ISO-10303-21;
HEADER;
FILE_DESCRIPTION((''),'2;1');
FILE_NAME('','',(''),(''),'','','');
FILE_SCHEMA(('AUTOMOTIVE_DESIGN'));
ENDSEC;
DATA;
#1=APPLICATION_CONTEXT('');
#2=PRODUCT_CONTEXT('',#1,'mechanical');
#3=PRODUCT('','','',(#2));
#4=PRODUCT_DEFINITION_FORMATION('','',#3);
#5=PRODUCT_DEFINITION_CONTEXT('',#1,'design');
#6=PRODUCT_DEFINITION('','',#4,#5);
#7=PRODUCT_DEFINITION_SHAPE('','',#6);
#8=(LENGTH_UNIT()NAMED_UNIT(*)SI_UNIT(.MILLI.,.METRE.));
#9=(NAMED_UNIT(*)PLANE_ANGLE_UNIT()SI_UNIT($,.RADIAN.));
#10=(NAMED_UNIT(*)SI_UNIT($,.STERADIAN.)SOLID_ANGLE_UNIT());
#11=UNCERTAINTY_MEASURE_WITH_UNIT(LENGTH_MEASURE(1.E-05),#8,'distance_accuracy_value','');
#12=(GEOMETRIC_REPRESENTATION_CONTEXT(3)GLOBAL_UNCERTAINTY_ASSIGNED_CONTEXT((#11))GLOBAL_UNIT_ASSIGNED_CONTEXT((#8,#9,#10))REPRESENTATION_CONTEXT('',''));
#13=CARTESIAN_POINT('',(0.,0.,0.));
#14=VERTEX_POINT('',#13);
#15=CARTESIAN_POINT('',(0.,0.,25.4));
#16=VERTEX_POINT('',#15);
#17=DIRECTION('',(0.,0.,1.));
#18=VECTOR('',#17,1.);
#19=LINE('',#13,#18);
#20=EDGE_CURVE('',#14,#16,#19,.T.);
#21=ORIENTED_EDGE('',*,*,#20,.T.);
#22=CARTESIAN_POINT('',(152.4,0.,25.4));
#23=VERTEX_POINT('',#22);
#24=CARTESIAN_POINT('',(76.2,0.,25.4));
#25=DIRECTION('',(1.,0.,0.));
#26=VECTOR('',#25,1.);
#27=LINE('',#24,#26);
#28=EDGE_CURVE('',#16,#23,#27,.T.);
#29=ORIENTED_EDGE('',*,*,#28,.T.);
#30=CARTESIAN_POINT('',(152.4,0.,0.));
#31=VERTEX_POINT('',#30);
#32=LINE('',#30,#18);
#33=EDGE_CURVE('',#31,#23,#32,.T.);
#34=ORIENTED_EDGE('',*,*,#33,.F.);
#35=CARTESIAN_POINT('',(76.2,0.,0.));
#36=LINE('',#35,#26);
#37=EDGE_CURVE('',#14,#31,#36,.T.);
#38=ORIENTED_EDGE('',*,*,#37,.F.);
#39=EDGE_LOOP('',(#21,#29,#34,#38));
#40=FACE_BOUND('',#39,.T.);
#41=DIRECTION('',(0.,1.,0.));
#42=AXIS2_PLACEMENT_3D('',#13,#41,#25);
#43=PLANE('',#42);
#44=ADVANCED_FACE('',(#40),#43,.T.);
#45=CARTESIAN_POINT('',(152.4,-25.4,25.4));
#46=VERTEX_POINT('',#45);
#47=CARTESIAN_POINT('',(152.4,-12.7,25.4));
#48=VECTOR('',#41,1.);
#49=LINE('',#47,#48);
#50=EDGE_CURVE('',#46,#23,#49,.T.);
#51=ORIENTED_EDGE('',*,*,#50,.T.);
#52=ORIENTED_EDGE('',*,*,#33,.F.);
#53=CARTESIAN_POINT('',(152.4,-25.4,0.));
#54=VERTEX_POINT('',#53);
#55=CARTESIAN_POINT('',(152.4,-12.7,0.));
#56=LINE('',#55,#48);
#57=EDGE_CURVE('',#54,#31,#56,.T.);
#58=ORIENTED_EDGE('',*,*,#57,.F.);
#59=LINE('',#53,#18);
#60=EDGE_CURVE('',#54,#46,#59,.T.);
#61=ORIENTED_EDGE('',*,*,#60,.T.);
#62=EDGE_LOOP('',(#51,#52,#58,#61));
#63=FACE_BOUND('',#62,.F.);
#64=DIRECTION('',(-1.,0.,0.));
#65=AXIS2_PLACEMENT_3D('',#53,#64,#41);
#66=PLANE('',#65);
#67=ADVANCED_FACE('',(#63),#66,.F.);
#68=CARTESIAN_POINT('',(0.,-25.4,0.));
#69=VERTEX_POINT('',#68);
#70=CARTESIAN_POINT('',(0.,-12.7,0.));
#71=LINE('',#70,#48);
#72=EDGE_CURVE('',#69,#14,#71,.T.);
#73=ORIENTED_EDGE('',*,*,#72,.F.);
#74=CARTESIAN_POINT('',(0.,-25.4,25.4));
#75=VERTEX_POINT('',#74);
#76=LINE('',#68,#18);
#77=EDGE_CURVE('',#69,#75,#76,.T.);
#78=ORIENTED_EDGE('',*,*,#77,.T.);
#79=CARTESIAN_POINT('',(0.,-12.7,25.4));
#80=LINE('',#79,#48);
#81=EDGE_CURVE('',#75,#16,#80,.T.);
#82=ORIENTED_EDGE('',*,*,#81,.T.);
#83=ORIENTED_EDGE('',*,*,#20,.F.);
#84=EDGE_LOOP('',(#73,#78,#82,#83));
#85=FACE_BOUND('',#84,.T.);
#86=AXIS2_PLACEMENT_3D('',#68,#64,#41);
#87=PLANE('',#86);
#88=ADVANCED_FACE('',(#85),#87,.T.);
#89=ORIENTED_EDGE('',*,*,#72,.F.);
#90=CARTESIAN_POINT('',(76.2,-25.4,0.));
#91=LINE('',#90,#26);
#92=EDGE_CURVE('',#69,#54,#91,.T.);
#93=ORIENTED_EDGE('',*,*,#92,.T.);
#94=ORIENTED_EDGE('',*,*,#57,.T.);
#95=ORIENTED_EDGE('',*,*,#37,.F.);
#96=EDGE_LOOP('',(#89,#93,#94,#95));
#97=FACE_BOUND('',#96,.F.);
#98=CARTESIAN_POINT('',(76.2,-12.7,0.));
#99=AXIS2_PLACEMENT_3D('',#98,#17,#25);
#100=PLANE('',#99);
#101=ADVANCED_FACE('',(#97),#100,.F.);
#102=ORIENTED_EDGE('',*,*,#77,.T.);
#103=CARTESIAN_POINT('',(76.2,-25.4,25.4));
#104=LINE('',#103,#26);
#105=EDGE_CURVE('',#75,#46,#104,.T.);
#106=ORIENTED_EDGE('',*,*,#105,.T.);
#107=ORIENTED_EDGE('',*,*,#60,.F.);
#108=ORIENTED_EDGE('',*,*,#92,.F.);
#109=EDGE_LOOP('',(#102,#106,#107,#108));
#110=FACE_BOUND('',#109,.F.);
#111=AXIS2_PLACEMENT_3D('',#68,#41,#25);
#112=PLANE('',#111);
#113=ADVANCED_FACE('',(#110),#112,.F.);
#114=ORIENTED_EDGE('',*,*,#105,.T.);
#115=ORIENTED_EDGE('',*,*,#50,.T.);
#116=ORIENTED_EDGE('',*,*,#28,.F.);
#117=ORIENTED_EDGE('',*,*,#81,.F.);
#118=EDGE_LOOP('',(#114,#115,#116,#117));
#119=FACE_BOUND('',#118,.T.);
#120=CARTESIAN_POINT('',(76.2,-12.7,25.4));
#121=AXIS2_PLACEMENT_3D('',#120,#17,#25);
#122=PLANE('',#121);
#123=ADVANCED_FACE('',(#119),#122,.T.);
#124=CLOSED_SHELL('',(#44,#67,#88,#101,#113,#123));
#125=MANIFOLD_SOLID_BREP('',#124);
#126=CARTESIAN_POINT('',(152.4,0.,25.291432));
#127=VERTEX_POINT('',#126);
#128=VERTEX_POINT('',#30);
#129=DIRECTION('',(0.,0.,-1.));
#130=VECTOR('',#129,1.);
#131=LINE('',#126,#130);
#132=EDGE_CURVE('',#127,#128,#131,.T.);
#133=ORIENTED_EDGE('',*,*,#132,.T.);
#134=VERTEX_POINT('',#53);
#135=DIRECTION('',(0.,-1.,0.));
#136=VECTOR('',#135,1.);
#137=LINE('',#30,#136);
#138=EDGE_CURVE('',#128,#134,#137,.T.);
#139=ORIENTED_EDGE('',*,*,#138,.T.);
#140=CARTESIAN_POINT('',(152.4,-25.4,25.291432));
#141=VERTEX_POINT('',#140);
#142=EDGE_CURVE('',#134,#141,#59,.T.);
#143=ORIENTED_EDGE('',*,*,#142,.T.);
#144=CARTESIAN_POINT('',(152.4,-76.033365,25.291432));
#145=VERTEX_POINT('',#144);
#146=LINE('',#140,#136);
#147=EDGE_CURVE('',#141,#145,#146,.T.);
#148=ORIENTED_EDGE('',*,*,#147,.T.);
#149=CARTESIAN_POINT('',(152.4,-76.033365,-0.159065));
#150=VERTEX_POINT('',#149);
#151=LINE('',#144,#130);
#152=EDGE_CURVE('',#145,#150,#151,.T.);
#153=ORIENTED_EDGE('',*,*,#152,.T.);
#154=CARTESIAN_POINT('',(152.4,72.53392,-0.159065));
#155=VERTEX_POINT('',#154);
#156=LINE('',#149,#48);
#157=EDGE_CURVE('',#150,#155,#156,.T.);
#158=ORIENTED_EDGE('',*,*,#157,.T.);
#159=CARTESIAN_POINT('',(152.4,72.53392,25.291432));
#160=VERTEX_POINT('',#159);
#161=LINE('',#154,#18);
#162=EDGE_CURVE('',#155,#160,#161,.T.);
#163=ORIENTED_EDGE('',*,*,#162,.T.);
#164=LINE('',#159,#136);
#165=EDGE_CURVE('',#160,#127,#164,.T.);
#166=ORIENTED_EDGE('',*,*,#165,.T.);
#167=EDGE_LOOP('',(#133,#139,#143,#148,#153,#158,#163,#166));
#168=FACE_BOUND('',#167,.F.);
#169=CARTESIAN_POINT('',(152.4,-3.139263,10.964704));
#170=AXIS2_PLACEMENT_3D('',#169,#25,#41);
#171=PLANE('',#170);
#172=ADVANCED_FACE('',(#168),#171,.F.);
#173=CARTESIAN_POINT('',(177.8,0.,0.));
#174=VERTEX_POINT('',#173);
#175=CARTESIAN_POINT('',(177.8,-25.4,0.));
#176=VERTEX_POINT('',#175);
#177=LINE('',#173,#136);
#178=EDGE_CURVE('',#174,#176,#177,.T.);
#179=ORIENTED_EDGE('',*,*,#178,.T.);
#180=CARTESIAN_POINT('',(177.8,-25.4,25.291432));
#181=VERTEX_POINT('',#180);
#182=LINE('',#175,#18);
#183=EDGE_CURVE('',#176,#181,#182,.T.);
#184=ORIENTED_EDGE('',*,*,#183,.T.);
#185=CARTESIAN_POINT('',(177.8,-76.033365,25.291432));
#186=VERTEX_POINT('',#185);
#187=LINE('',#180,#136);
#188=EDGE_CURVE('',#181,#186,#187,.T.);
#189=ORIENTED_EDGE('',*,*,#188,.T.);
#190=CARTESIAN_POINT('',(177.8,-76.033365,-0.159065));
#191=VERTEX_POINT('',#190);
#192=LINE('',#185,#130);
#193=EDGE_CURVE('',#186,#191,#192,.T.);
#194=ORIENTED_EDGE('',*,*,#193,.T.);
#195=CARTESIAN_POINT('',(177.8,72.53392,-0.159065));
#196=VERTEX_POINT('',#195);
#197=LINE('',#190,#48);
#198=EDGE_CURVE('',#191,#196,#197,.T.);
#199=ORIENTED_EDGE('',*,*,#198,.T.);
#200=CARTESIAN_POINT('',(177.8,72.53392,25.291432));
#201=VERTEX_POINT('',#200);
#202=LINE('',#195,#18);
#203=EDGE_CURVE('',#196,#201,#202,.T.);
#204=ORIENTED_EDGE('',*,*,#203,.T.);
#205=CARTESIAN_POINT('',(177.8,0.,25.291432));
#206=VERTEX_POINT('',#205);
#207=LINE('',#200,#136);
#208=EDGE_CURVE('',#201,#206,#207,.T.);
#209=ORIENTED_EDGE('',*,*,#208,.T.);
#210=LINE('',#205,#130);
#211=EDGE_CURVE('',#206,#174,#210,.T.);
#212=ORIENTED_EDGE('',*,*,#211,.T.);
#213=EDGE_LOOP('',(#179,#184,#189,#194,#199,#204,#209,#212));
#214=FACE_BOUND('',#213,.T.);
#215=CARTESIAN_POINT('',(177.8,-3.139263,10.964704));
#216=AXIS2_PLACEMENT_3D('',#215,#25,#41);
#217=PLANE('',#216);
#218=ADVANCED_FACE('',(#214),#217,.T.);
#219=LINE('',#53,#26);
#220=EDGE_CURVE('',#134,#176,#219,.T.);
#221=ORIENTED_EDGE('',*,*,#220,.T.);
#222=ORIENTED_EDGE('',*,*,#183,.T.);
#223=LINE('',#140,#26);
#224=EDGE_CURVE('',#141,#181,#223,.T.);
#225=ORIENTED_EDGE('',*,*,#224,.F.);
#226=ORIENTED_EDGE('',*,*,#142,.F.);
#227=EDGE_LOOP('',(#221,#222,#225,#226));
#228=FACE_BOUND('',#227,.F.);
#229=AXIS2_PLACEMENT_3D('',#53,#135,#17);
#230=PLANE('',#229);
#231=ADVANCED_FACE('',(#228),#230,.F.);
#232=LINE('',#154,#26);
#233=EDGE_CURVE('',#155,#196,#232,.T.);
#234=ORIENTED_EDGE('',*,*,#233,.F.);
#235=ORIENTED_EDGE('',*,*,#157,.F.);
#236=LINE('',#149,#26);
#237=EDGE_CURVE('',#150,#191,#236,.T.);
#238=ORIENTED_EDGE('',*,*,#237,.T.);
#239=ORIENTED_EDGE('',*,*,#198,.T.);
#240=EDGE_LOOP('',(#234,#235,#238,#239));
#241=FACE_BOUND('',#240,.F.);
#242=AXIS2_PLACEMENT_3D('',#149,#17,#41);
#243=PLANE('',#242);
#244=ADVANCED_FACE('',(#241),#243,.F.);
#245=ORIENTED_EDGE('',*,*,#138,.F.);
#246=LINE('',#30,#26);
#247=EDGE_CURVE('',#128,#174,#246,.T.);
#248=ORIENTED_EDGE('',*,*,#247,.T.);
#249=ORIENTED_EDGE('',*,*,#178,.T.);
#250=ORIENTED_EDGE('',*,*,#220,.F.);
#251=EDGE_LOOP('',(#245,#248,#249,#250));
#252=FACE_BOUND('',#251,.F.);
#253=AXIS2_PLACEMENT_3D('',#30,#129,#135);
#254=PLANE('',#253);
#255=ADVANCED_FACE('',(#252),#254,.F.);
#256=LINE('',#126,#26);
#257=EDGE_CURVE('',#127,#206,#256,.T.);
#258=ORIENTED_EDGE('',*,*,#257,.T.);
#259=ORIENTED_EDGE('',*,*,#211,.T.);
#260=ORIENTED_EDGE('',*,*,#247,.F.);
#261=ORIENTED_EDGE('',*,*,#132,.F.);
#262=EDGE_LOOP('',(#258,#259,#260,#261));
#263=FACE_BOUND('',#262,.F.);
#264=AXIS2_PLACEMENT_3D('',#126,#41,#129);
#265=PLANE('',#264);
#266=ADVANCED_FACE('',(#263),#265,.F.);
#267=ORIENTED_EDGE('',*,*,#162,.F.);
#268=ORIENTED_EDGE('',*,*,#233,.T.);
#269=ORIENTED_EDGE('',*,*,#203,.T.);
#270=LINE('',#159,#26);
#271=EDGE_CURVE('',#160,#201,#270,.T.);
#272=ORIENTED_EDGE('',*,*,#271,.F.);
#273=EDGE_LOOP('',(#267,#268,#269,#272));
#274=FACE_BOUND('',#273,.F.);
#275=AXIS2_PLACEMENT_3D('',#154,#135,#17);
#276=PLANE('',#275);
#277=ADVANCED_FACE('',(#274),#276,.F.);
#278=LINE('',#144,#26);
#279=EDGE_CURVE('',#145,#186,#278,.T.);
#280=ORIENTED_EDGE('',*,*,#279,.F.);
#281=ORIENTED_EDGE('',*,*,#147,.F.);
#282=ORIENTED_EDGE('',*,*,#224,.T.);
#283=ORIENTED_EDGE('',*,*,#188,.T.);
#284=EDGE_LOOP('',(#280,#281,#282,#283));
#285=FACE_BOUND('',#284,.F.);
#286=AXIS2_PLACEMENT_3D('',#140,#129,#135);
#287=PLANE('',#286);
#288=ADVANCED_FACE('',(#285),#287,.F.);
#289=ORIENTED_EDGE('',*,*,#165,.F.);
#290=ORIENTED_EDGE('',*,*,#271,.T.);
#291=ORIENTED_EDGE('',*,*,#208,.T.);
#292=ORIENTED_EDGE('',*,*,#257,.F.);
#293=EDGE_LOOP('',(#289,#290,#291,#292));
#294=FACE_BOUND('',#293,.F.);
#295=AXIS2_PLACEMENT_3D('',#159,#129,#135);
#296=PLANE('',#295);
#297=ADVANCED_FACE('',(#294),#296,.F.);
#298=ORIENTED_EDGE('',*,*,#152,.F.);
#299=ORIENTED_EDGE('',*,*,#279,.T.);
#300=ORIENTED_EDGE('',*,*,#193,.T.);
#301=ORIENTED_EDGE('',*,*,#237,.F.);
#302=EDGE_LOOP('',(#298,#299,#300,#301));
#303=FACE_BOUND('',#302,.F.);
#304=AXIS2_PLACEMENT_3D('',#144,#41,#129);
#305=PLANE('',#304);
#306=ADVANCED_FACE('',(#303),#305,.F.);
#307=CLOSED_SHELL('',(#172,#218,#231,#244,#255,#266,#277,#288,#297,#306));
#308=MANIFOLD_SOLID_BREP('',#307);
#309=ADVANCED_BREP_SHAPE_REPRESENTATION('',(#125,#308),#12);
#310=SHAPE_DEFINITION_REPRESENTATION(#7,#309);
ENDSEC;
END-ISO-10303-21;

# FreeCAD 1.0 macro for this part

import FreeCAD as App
import Part
import Sketcher
from FreeCAD import Vector
Q = App.Units.Quantity

doc = App.newDocument("Part")
body = doc.addObject("PartDesign::Body", "Body")

# Sketch on XY plane
sketch1 = body.newObject("Sketcher::SketchObject", "Sketch")
sketch1.AttachmentSupport = (doc.getObject("XY_Plane"), [""])
sketch1.MapMode = "FlatFace"
sketch1.addGeometry([
    Part.LineSegment(Vector(0, 0, 0), Vector(0, -25, 0)),
    Part.LineSegment(Vector(0, -25, 0), Vector(152, -25, 0)),
    Part.LineSegment(Vector(152, -25, 0), Vector(152, 0, 0)),
    Part.LineSegment(Vector(152, 0, 0), Vector(0, 0, 0)),
], False)
sketch1.addConstraint([
    Sketcher.Constraint("Coincident", 0, 2, 1, 1),
    Sketcher.Constraint("Coincident", 1, 2, 2, 1),
    Sketcher.Constraint("Coincident", 2, 2, 3, 1),
    Sketcher.Constraint("Coincident", 3, 2, 0, 1),
    Sketcher.Constraint("Vertical", 0),
    Sketcher.Constraint("Horizontal", 1),
    Sketcher.Constraint("Vertical", 2),
    Sketcher.Constraint("Horizontal", 3),
    Sketcher.Constraint("Coincident", 3, 2, -1, 1),
    Sketcher.Constraint("DistanceX", 1, 1, 1, 2, Q("6 in")),
    Sketcher.Constraint("DistanceY", 0, 2, 0, 1, Q("1 in")),
])
pad1 = body.newObject("PartDesign::Pad", "Pad")
pad1.Profile = sketch1
pad1.Length = Q("1 in")
body2 = doc.addObject("PartDesign::Body", "Body001")

# Sketch on YZ plane
sketch2 = body2.newObject("Sketcher::SketchObject", "Sketch001")
sketch2.AttachmentSupport = (doc.getObject("YZ_Plane001"), [""])
sketch2.MapMode = "FlatFace"
sketch2.AttachmentOffset = App.Placement(Vector(0, 0, 6 * 25.4), App.Rotation())
sketch2.addGeometry([
    Part.LineSegment(Vector(-76, 0, 0), Vector(73, 0, 0)),  # 0
    Part.LineSegment(Vector(73, 0, 0), Vector(73, 25, 0)),  # 1
    Part.LineSegment(Vector(73, 25, 0), Vector(0, 25, 0)),  # 2
    Part.LineSegment(Vector(0, 25, 0), Vector(0, 0, 0)),  # 3
    Part.LineSegment(Vector(0, 0, 0), Vector(-25, 0, 0)),  # 4
    Part.LineSegment(Vector(-25, 0, 0), Vector(-25, 25, 0)),  # 5
    Part.LineSegment(Vector(-25, 25, 0), Vector(-76, 25, 0)),  # 6
    Part.LineSegment(Vector(-76, 25, 0), Vector(-76, 0, 0)),  # 7
], False)
sketch2.addConstraint([
    Sketcher.Constraint("Coincident", 0, 2, 1, 1),
    Sketcher.Constraint("Coincident", 1, 2, 2, 1),
    Sketcher.Constraint("Coincident", 2, 2, 3, 1),
    Sketcher.Constraint("Coincident", 3, 2, 4, 1),
    Sketcher.Constraint("Coincident", 4, 2, 5, 1),
    Sketcher.Constraint("Coincident", 5, 2, 6, 1),
    Sketcher.Constraint("Coincident", 6, 2, 7, 1),
    Sketcher.Constraint("Coincident", 7, 2, 0, 1),
    Sketcher.Constraint("Horizontal", 0),
    Sketcher.Constraint("Vertical", 1),
    Sketcher.Constraint("Horizontal", 2),
    Sketcher.Constraint("Vertical", 3),
    Sketcher.Constraint("Horizontal", 4),
    Sketcher.Constraint("Vertical", 5),
    Sketcher.Constraint("Horizontal", 6),
    Sketcher.Constraint("Vertical", 7),
    Sketcher.Constraint("Coincident", 3, 2, -1, 1),
    Sketcher.Constraint("Horizontal", 2, 2, 5, 2),
    Sketcher.Constraint("DistanceX", 4, 2, 4, 1, Q("1 in")),
    Sketcher.Constraint("DistanceX", 2, 2, 2, 1, 72.53392),
    Sketcher.Constraint("DistanceX", 0, 1, 0, 2, 148.567285),
    Sketcher.Constraint("DistanceY", 1, 1, 1, 2, 25.450497),
    Sketcher.Constraint("DistanceY", 3, 2, 3, 1, 25.291432),
])
pad2 = body2.newObject("PartDesign::Pad", "Pad001")
pad2.Profile = sketch2
pad2.Length = Q("1 in")

doc.recompute()
